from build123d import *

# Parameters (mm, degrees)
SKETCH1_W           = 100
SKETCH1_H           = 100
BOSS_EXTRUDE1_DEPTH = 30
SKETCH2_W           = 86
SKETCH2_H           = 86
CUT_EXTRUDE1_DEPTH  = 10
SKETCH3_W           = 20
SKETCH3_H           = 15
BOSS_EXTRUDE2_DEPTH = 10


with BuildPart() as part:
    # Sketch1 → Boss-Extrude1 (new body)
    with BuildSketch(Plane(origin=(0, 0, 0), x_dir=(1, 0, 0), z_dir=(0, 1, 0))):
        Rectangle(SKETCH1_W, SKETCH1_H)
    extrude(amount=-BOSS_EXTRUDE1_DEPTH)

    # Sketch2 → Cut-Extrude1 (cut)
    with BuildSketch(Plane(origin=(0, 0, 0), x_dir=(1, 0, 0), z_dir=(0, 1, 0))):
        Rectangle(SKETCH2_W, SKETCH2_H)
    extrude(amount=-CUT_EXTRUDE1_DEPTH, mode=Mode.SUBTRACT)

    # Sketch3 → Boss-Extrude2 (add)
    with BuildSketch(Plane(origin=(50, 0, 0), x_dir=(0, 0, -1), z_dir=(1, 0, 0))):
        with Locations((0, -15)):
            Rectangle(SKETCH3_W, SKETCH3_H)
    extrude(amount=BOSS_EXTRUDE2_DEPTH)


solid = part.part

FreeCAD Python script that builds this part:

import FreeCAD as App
import Part
import Sketcher
from FreeCAD import Vector


def add_polygon(sketch, points):
    """Adds a closed chain of lines whose ends are joined by coincident constraints."""
    first, n = sketch.GeometryCount, len(points)
    for a, b in zip(points, points[1:] + points[:1]):
        sketch.addGeometry(Part.LineSegment(App.Vector(*a, 0), App.Vector(*b, 0)), False)
    for i in range(n):
        sketch.addConstraint(Sketcher.Constraint("Coincident", first + i, 2, first + (i + 1) % n, 1))

doc = App.newDocument("Part")
body = doc.addObject("PartDesign::Body", "Body")

# Sketch on XZ plane
sketch1 = body.newObject("Sketcher::SketchObject", "Sketch")
sketch1.AttachmentSupport = (doc.getObject("XZ_Plane"), [""])
sketch1.MapMode = "FlatFace"
add_polygon(sketch1, [(-50, -50), (-50, 50), (50, 50), (50, -50)])  # lines 0-3
sketch1.addConstraint([
    Sketcher.Constraint("Vertical", 0),
    Sketcher.Constraint("Horizontal", 1),
    Sketcher.Constraint("Vertical", 2),
    Sketcher.Constraint("Horizontal", 3),
    Sketcher.Constraint("Symmetric", 0, 2, 2, 2, -1, 1),
    Sketcher.Constraint("Equal", 3, 0),
    Sketcher.Constraint("DistanceX", 1, 1, 1, 2, 100.0),
])
pad1 = body.newObject("PartDesign::Pad", "Pad")
pad1.Profile = sketch1
pad1.Length = 30

# Sketch on XZ plane
sketch2 = body.newObject("Sketcher::SketchObject", "Sketch001")
sketch2.AttachmentSupport = (doc.getObject("XZ_Plane"), [""])
sketch2.MapMode = "FlatFace"
add_polygon(sketch2, [(-43, -43), (-43, 43), (43, 43), (43, -43)])  # lines 0-3
sketch2.addConstraint([
    Sketcher.Constraint("Vertical", 0),
    Sketcher.Constraint("Horizontal", 1),
    Sketcher.Constraint("Vertical", 2),
    Sketcher.Constraint("Horizontal", 3),
    Sketcher.Constraint("Symmetric", 0, 2, 2, 2, -1, 1),
    Sketcher.Constraint("Equal", 3, 0),
    Sketcher.Constraint("DistanceX", 1, 1, 1, 2, 86.0),
])
pocket1 = body.newObject("PartDesign::Pocket", "Pocket")
pocket1.Profile = sketch2
pocket1.Length = 10
pocket1.Reversed = True

# Sketch on YZ plane
sketch3 = body.newObject("Sketcher::SketchObject", "Sketch002")
sketch3.AttachmentSupport = (doc.getObject("YZ_Plane"), [""])
sketch3.MapMode = "FlatFace"
sketch3.AttachmentOffset = App.Placement(Vector(0, 0, 50), App.Rotation())
add_polygon(sketch3, [(-8, 10), (-22, 10), (-22, -10), (-8, -10)])  # lines 0-3
sketch3.addConstraint([
    Sketcher.Constraint("Horizontal", 0),
    Sketcher.Constraint("Vertical", 1),
    Sketcher.Constraint("Horizontal", 2),
    Sketcher.Constraint("Vertical", 3),
    Sketcher.Constraint("DistanceX", 0, 2, 0, 1, 15.0),
    Sketcher.Constraint("DistanceY", 1, 2, 1, 1, 20.0),
    Sketcher.Constraint("DistanceY", -1, 1, 0, 2, 10.0),
    Sketcher.Constraint("DistanceX", 0, 2, -1, 1, 22.5),
])
pad2 = body.newObject("PartDesign::Pad", "Pad001")
pad2.Profile = sketch3
pad2.Length = 10

doc.recompute()
